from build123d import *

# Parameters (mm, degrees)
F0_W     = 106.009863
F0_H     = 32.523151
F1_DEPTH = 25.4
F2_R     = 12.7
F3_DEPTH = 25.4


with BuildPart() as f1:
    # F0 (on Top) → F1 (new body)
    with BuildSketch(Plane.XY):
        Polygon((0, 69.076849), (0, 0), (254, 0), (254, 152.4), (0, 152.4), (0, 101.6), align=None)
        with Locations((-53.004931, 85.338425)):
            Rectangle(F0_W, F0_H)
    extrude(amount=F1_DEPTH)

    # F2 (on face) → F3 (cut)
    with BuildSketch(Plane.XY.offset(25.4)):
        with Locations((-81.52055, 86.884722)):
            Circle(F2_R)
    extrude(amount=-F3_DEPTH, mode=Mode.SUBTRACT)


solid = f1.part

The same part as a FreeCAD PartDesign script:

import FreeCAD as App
import Part
import Sketcher
Q = App.Units.Quantity


def add_polygon(sketch, points):
    """Adds a closed chain of lines whose ends are joined by coincident constraints."""
    first, n = sketch.GeometryCount, len(points)
    for a, b in zip(points, points[1:] + points[:1]):
        sketch.addGeometry(Part.LineSegment(App.Vector(*a, 0), App.Vector(*b, 0)), False)
    for i in range(n):
        sketch.addConstraint(Sketcher.Constraint("Coincident", first + i, 2, first + (i + 1) % n, 1))

doc = App.newDocument("Part")
body = doc.addObject("PartDesign::Body", "Body")

# Sketch on XY plane
sketch1 = body.newObject("Sketcher::SketchObject", "Sketch")
sketch1.AttachmentSupport = (doc.getObject("XY_Plane"), [""])
sketch1.MapMode = "FlatFace"
add_polygon(sketch1, [(0, 69.076849), (0, 0), (254, 0), (254, 152.4), (0, 152.4), (0, 101.6), (-106.009862, 101.6), (-106.009862, 69.076849)])  # lines 0-7
sketch1.addConstraint([
    Sketcher.Constraint("Vertical", 0),
    Sketcher.Constraint("Horizontal", 1),
    Sketcher.Constraint("Vertical", 2),
    Sketcher.Constraint("Horizontal", 3),
    Sketcher.Constraint("Vertical", 4),
    Sketcher.Constraint("Horizontal", 5),
    Sketcher.Constraint("Vertical", 6),
    Sketcher.Constraint("Horizontal", 7),
    Sketcher.Constraint("Coincident", 0, 2, -1, 1),
    Sketcher.Constraint("PointOnObject", 3, 2, -2),
    Sketcher.Constraint("DistanceX", 1, 1, 1, 2, Q("10 in")),
    Sketcher.Constraint("DistanceY", 2, 1, 2, 2, Q("6 in")),
    Sketcher.Constraint("DistanceY", 4, 2, 4, 1, Q("2 in")),
    Sketcher.Constraint("DistanceY", 0, 2, 0, 1, 69.076849),
    Sketcher.Constraint("DistanceX", 5, 2, 5, 1, 106.009862),
])
pad1 = body.newObject("PartDesign::Pad", "Pad")
pad1.Profile = sketch1
pad1.Length = Q("1 in")

# Sketch on XY plane
sketch2 = body.newObject("Sketcher::SketchObject", "Sketch001")
sketch2.AttachmentSupport = (doc.getObject("XY_Plane"), [""])
sketch2.MapMode = "FlatFace"
sketch2.AttachmentOffset = App.Placement(App.Vector(0, 0, 1 * 25.4), App.Rotation())
sketch2.addGeometry(Part.Circle(App.Vector(-81.52055, 86.884722, 0), App.Vector(0, 0, 1), 12.7), False)
sketch2.addConstraint([
    Sketcher.Constraint("Diameter", 0, Q("1 in")),
    Sketcher.Constraint("DistanceX", 0, 3, -1, 1, 81.52055),
    Sketcher.Constraint("DistanceY", -1, 1, 0, 3, 86.884722),
])
pocket1 = body.newObject("PartDesign::Pocket", "Pocket")
pocket1.Profile = sketch2
pocket1.Length = Q("1 in")

doc.recompute()
